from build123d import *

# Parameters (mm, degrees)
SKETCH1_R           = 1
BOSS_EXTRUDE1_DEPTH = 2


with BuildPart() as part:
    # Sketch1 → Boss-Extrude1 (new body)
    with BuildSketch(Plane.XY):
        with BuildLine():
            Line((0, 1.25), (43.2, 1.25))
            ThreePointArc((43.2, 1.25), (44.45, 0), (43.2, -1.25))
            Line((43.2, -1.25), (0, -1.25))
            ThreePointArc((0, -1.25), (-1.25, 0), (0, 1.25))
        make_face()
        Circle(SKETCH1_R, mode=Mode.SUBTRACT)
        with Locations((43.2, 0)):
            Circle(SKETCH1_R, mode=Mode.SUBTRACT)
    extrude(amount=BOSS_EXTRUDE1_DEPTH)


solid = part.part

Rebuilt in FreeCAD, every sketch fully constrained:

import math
import FreeCAD as App
import Part
import Sketcher
from FreeCAD import Vector

doc = App.newDocument("Part")
body = doc.addObject("PartDesign::Body", "Body")

# Sketch on XY plane
sketch1 = doc.addObject("Sketcher::SketchObject", "Sketch")
body.addObject(sketch1)
sketch1.AttachmentSupport = (doc.XY_Plane, [""])
sketch1.MapMode = "FlatFace"
sketch1.addGeometry([
    Part.LineSegment(Vector(43.2, 1.2, 0), Vector(0, 1.2, 0)),  # 0
    Part.ArcOfCircle(Part.Circle(Vector(0, 0, 0), Vector(0, 0, 1), 1.2), math.radians(90), math.radians(270)),  # 1
    Part.LineSegment(Vector(0, -1.2, 0), Vector(43.2, -1.2, 0)),  # 2
    Part.ArcOfCircle(Part.Circle(Vector(43.2, 0, 0), Vector(0, 0, 1), 1.2), math.radians(-90), math.radians(90)),  # 3
    Part.Circle(Vector(43.2, 0, 0), Vector(0, 0, 1), 1),  # 4
    Part.Circle(Vector(0, 0, 0), Vector(0, 0, 1), 1),  # 5
], False)
sketch1.addConstraint([
    Sketcher.Constraint("Tangent", 0, 2, 1, 1),
    Sketcher.Constraint("Tangent", 1, 2, 2, 1),
    Sketcher.Constraint("Tangent", 2, 2, 3, 1),
    Sketcher.Constraint("Tangent", 3, 2, 0, 1),
    Sketcher.Constraint("Horizontal", 0),
    Sketcher.Constraint("Horizontal", 2),
    Sketcher.Constraint("Coincident", 1, 3, -1, 1),
    Sketcher.Constraint("Coincident", 5, 3, -1, 1),
    Sketcher.Constraint("Coincident", 4, 3, 3, 3),
    Sketcher.Constraint("Equal", 4, 5),
    Sketcher.Constraint("Diameter", 4, 2.0),
    Sketcher.Constraint("Radius", 1, 1.25),
    Sketcher.Constraint("DistanceX", 0, 2, 0, 1, 43.2),
])
pad1 = doc.addObject("PartDesign::Pad", "Pad")
body.addObject(pad1)
pad1.Profile = sketch1
pad1.Length = 2

doc.recompute()
